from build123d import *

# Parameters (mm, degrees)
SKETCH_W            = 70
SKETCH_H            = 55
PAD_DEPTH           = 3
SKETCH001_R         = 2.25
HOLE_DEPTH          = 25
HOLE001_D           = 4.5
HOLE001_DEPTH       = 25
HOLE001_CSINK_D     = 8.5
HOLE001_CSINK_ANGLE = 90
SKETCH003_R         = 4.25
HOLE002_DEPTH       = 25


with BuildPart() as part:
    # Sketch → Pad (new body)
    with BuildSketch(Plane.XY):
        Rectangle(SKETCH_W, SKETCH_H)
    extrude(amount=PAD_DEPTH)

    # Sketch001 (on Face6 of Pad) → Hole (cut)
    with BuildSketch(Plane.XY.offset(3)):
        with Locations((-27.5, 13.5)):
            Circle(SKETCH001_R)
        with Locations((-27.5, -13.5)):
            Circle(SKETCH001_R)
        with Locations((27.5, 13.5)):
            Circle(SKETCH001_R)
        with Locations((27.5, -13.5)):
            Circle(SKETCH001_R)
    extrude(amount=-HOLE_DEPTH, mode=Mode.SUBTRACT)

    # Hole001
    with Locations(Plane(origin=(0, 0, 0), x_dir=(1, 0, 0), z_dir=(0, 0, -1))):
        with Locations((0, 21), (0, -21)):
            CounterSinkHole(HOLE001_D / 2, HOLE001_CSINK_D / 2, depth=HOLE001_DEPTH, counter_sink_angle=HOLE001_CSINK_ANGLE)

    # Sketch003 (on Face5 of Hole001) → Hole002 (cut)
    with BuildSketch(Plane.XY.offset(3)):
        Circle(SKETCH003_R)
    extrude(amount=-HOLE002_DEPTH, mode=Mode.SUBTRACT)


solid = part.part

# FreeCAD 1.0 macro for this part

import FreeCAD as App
import Part
import Sketcher
Q = App.Units.Quantity


def add_polygon(sketch, points):
    """Adds a closed chain of lines whose ends are joined by coincident constraints."""
    first, n = sketch.GeometryCount, len(points)
    for a, b in zip(points, points[1:] + points[:1]):
        sketch.addGeometry(Part.LineSegment(App.Vector(*a, 0), App.Vector(*b, 0)), False)
    for i in range(n):
        sketch.addConstraint(Sketcher.Constraint("Coincident", first + i, 2, first + (i + 1) % n, 1))

doc = App.newDocument("Part")
params = doc.addObject("Spreadsheet::Sheet", "Params")
for row, (alias, value) in enumerate([
    ("sketch1_width", "70 mm"),
    ("sketch1_height", "55 mm"),
    ("pad1_length", "3 mm"),
    ("sketch2_diameter", "4.5 mm"),
    ("pocket1_length", "25 mm"),
    ("sketch3_diameter", "4.5 mm"),
    ("hole_diameter", "4.5 mm"),
    ("hole_depth", "25 mm"),
    ("hole_csink_diameter", "8.5 mm"),
    ("sketch4_diameter", "8.5 mm"),
    ("pocket2_length", "25 mm"),
], start=1):
    params.set(f"A{row}", alias)
    params.set(f"B{row}", "=" + value)
    params.setAlias(f"B{row}", alias)

body = doc.addObject("PartDesign::Body", "Body")

# Sketch on XY plane
sketch1 = body.newObject("Sketcher::SketchObject", "Sketch")
sketch1.AttachmentSupport = (doc.getObject("XY_Plane"), [""])
sketch1.MapMode = "FlatFace"
add_polygon(sketch1, [(-35, 28), (-35, -28), (35, -28), (35, 28)])  # lines 0-3
sketch1.addConstraint([
    Sketcher.Constraint("Vertical", 0),
    Sketcher.Constraint("Horizontal", 1),
    Sketcher.Constraint("Vertical", 2),
    Sketcher.Constraint("Horizontal", 3),
    Sketcher.Constraint("Symmetric", 0, 2, 2, 2, -1, 1),
    Sketcher.Constraint("DistanceX", 1, 1, 1, 2, Q("70 mm")),
    Sketcher.Constraint("DistanceY", 0, 2, 0, 1, Q("55 mm")),
])
sketch1.setExpression("Constraints[9]", "Params.sketch1_width")
sketch1.setExpression("Constraints[10]", "Params.sketch1_height")
pad1 = body.newObject("PartDesign::Pad", "Pad")
pad1.Profile = sketch1
pad1.setExpression("Length", "Params.pad1_length")

# Sketch on XY plane
sketch2 = body.newObject("Sketcher::SketchObject", "Sketch001")
sketch2.AttachmentSupport = (doc.getObject("XY_Plane"), [""])
sketch2.MapMode = "FlatFace"
sketch2.AttachmentOffset = App.Placement(App.Vector(0, 0, 3), App.Rotation())
sketch2.addGeometry([
    Part.Circle(App.Vector(-27.5, 13.5, 0), App.Vector(0, 0, 1), 2.2),
    Part.Circle(App.Vector(-27.5, -13.5, 0), App.Vector(0, 0, 1), 2.2),
    Part.Circle(App.Vector(27.5, 13.5, 0), App.Vector(0, 0, 1), 2.2),
    Part.Circle(App.Vector(27.5, -13.5, 0), App.Vector(0, 0, 1), 2.2),
], False)
sketch2.addConstraint([
    Sketcher.Constraint("Equal", 0, 1),
    Sketcher.Constraint("Equal", 1, 2),
    Sketcher.Constraint("Equal", 2, 3),
    Sketcher.Constraint("Symmetric", 1, 3, 2, 3, -1, 1),
    Sketcher.Constraint("Symmetric", 0, 3, 3, 3, -1, 1),
    Sketcher.Constraint("Symmetric", 0, 3, 2, 3, -2),
    Sketcher.Constraint("Diameter", 0, Q("4.5 mm")),
    Sketcher.Constraint("DistanceY", 1, 3, 0, 3, Q("27 mm")),
    Sketcher.Constraint("DistanceX", 0, 3, 2, 3, Q("55 mm")),
])
sketch2.setExpression("Constraints[6]", "Params.sketch2_diameter")
pocket1 = body.newObject("PartDesign::Pocket", "Pocket")
pocket1.Profile = sketch2
pocket1.setExpression("Length", "Params.pocket1_length")

# Sketch on XY plane
sketch3 = body.newObject("Sketcher::SketchObject", "Sketch002")
sketch3.AttachmentSupport = (doc.getObject("XY_Plane"), [""])
sketch3.MapMode = "FlatFace"
sketch3.addGeometry([
    Part.Circle(App.Vector(0, -21, 0), App.Vector(0, 0, 1), 2.2),
    Part.Circle(App.Vector(0, 21, 0), App.Vector(0, 0, 1), 2.2),
], False)
sketch3.addConstraint([
    Sketcher.Constraint("Equal", 0, 1),
    Sketcher.Constraint("Symmetric", 0, 3, 1, 3, -1, 1),
    Sketcher.Constraint("PointOnObject", 0, 3, -2),
    Sketcher.Constraint("Diameter", 0, Q("4.5 mm")),
    Sketcher.Constraint("DistanceY", 0, 3, -1, 1, Q("21 mm")),
])
sketch3.setExpression("Constraints[3]", "Params.sketch3_diameter")
doc.recompute()
hole = body.newObject("PartDesign::Hole", "Hole")
hole.Profile = sketch3
hole.ThreadType = "None"
hole.setExpression("Diameter", "Params.hole_diameter")
hole.DepthType = "Dimension"
hole.setExpression("Depth", "Params.hole_depth")
hole.DrillPoint = "Flat"
hole.HoleCutType = "Countersink"
hole.setExpression("HoleCutDiameter", "Params.hole_csink_diameter")
hole.HoleCutCountersinkAngle = 90
hole.Reversed = True

# Sketch on XY plane
sketch4 = body.newObject("Sketcher::SketchObject", "Sketch003")
sketch4.AttachmentSupport = (doc.getObject("XY_Plane"), [""])
sketch4.MapMode = "FlatFace"
sketch4.AttachmentOffset = App.Placement(App.Vector(0, 0, 3), App.Rotation())
sketch4.addGeometry(Part.Circle(App.Vector(0, 0, 0), App.Vector(0, 0, 1), 4.2), False)
sketch4.addConstraint([
    Sketcher.Constraint("Coincident", 0, 3, -1, 1),
    Sketcher.Constraint("Diameter", 0, Q("8.5 mm")),
])
sketch4.setExpression("Constraints[1]", "Params.sketch4_diameter")
pocket2 = body.newObject("PartDesign::Pocket", "Pocket001")
pocket2.Profile = sketch4
pocket2.setExpression("Length", "Params.pocket2_length")

doc.recompute()
